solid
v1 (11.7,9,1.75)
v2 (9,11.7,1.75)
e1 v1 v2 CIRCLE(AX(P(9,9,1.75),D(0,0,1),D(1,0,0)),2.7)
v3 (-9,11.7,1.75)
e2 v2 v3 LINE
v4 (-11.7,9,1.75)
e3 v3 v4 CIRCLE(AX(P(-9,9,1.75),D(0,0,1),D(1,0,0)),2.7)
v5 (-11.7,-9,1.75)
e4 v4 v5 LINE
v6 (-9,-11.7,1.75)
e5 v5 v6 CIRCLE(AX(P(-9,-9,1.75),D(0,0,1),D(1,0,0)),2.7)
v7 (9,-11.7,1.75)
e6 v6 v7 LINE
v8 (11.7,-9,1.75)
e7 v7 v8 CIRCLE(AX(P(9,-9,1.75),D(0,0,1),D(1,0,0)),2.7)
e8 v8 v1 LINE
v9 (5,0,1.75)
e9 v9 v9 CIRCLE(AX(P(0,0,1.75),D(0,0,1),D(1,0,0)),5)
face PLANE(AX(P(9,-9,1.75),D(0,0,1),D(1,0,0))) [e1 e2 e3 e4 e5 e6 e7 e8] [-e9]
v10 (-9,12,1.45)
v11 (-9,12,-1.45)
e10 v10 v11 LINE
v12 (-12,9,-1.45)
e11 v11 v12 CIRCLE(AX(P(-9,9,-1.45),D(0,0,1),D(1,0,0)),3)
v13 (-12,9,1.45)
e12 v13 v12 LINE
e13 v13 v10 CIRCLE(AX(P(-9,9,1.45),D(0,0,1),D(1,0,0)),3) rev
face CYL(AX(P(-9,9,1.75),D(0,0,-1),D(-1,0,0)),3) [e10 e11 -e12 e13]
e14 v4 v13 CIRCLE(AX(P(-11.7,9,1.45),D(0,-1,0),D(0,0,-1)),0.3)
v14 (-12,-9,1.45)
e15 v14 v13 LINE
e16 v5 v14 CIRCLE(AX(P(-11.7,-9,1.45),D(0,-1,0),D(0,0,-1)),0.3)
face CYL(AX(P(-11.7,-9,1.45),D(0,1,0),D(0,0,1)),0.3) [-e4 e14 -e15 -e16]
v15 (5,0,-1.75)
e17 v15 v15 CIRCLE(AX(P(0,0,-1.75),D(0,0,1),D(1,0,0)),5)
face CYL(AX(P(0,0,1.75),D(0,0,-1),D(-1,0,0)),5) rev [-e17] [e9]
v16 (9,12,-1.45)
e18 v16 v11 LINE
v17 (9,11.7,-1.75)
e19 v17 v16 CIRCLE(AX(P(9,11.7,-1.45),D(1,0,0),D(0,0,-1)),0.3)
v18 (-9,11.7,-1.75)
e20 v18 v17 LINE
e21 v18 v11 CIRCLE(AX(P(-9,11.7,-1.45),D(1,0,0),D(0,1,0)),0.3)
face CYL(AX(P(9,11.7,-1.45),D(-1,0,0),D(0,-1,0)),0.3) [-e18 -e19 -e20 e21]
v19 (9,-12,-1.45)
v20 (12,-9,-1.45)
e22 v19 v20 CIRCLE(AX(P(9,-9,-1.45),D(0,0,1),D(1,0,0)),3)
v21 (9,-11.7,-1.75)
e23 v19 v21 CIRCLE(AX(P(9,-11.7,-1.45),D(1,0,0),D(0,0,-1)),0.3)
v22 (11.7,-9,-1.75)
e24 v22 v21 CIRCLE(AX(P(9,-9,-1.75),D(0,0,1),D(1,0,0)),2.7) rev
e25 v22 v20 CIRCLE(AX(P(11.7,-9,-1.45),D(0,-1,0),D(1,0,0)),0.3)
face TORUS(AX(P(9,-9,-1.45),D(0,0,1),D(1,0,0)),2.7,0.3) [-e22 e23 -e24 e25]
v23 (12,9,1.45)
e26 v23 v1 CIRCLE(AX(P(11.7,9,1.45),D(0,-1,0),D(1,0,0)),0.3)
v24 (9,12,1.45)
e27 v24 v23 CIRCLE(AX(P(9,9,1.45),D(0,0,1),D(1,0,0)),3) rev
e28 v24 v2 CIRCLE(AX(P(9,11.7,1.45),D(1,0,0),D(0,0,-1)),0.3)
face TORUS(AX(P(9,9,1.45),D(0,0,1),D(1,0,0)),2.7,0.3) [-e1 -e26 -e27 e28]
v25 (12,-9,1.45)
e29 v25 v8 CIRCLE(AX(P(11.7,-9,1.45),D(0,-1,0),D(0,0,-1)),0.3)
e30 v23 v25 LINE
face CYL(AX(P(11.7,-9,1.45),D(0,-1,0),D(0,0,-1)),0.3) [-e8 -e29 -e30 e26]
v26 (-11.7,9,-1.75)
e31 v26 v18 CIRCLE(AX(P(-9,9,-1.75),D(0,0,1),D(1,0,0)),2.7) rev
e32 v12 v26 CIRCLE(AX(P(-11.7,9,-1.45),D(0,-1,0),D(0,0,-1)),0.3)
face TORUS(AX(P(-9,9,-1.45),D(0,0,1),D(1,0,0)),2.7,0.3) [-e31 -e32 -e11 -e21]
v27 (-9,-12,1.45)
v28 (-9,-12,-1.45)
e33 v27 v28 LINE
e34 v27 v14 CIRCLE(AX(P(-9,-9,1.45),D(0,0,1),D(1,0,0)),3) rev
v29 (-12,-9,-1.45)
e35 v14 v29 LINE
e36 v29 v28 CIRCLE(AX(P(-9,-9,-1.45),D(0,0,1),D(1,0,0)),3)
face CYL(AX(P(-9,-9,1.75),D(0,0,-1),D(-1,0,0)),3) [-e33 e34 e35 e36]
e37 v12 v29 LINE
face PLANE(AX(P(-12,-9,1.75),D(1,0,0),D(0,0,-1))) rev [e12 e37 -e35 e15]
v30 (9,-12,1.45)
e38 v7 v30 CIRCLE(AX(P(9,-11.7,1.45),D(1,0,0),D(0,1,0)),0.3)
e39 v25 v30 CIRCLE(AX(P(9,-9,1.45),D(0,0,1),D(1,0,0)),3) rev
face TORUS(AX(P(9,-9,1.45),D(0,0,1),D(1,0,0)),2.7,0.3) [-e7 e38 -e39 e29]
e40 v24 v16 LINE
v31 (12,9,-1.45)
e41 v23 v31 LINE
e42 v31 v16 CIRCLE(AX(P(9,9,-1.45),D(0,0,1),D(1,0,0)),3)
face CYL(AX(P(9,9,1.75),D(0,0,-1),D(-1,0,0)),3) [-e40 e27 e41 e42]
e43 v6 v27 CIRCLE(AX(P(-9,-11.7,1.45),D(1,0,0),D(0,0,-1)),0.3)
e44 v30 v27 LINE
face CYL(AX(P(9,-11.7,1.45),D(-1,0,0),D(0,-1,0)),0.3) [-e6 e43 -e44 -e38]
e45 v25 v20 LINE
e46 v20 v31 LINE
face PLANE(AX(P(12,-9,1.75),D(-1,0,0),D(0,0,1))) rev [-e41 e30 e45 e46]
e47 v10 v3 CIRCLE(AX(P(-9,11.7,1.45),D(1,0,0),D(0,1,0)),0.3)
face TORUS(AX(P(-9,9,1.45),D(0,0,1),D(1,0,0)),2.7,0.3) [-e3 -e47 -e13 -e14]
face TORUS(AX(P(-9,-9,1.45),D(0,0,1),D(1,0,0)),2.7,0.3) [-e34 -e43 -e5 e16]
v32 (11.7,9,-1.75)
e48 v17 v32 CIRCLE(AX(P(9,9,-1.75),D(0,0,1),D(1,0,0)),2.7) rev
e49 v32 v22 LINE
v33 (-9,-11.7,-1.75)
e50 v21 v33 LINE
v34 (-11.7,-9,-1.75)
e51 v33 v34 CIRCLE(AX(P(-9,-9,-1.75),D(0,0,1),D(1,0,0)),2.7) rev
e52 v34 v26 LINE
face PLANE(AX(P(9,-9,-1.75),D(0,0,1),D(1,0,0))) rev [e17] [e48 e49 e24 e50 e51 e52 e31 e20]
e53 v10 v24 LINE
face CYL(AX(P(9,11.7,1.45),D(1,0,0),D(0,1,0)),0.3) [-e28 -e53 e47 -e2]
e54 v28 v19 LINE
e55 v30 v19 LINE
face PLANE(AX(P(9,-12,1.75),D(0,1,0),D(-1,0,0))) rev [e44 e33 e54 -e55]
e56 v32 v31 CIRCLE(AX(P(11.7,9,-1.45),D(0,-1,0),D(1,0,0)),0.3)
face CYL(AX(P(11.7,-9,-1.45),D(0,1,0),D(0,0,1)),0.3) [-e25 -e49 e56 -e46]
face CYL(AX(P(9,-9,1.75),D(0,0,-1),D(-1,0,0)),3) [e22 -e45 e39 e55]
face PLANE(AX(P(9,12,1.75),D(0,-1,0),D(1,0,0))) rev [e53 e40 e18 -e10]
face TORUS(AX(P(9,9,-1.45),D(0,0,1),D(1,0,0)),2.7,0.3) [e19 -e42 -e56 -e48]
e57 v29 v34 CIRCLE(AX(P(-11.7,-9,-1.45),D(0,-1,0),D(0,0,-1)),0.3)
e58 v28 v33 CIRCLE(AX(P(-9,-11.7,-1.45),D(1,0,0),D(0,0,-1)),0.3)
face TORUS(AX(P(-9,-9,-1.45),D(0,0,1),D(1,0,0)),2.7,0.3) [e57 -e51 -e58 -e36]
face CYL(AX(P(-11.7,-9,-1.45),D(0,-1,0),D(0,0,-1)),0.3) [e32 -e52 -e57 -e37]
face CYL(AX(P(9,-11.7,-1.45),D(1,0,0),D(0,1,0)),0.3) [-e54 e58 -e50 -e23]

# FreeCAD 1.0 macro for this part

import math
import FreeCAD as App
import Part
import Sketcher


def edges_at(feature, points):
    """Names of the edges that pass closest to the given points."""
    edges = feature.Shape.Edges
    near = lambda p: min(range(len(edges)), key=lambda i: edges[i].distToShape(Part.Vertex(*p))[0])
    return sorted({f"Edge{near(p) + 1}" for p in points})

doc = App.newDocument("Part")
params = doc.addObject("Spreadsheet::Sheet", "Params")
for row, (alias, value) in enumerate([
    ("sketch1_diameter", "10 mm"),
    ("sketch1_radius", "3 mm"),
    ("sketch1_width", "18 mm"),
    ("pad1_length", "3.5 mm"),
    ("fillet_radius", "0.3 mm"),
], start=1):
    params.set(f"A{row}", alias)
    params.set(f"B{row}", "=" + value)
    params.setAlias(f"B{row}", alias)

body = doc.addObject("PartDesign::Body", "Body")

sketch1 = doc.addObject("Sketcher::SketchObject", "Sketch")
body.addObject(sketch1)
sketch1.AttachmentSupport = (doc.XY_Plane, [""])
sketch1.MapMode = "FlatFace"
sketch1.addGeometry(Part.LineSegment(App.Vector(-9, -12, 0), App.Vector(9, -12, 0)), False)
sketch1.addGeometry(Part.ArcOfCircle(Part.Circle(App.Vector(9, -9, 0), App.Vector(0, 0, 1), 3), math.radians(-90), math.radians(0)), False)
sketch1.addGeometry(Part.LineSegment(App.Vector(12, -9, 0), App.Vector(12, 9, 0)), False)
sketch1.addGeometry(Part.ArcOfCircle(Part.Circle(App.Vector(9, 9, 0), App.Vector(0, 0, 1), 3), math.radians(0), math.radians(90)), False)
sketch1.addGeometry(Part.LineSegment(App.Vector(9, 12, 0), App.Vector(-9, 12, 0)), False)
sketch1.addGeometry(Part.ArcOfCircle(Part.Circle(App.Vector(-9, 9, 0), App.Vector(0, 0, 1), 3), math.radians(90), math.radians(180)), False)
sketch1.addGeometry(Part.LineSegment(App.Vector(-12, 9, 0), App.Vector(-12, -9, 0)), False)
sketch1.addGeometry(Part.ArcOfCircle(Part.Circle(App.Vector(-9, -9, 0), App.Vector(0, 0, 1), 3), math.radians(180), math.radians(270)), False)
sketch1.addGeometry(Part.Circle(App.Vector(0, 0, 0), App.Vector(0, 0, 1), 5), False)
sketch1.addConstraint(Sketcher.Constraint("Tangent", 0, 2, 1, 1))
sketch1.addConstraint(Sketcher.Constraint("Tangent", 1, 2, 2, 1))
sketch1.addConstraint(Sketcher.Constraint("Tangent", 2, 2, 3, 1))
sketch1.addConstraint(Sketcher.Constraint("Tangent", 3, 2, 4, 1))
sketch1.addConstraint(Sketcher.Constraint("Tangent", 4, 2, 5, 1))
sketch1.addConstraint(Sketcher.Constraint("Tangent", 5, 2, 6, 1))
sketch1.addConstraint(Sketcher.Constraint("Tangent", 6, 2, 7, 1))
sketch1.addConstraint(Sketcher.Constraint("Tangent", 7, 2, 0, 1))
sketch1.addConstraint(Sketcher.Constraint("Horizontal", 0))
sketch1.addConstraint(Sketcher.Constraint("Vertical", 2))
sketch1.addConstraint(Sketcher.Constraint("Horizontal", 4))
sketch1.addConstraint(Sketcher.Constraint("Vertical", 6))
sketch1.addConstraint(Sketcher.Constraint("Coincident", 8, 3, -1, 1))
sketch1.addConstraint(Sketcher.Constraint("Equal", 1, 3))
sketch1.addConstraint(Sketcher.Constraint("Equal", 3, 5))
sketch1.addConstraint(Sketcher.Constraint("Equal", 5, 7))
sketch1.addConstraint(Sketcher.Constraint("Symmetric", 1, 3, 5, 3, -1, 1))
sketch1.addConstraint(Sketcher.Constraint("Equal", 4, 2))
sketch1.addConstraint(Sketcher.Constraint("Diameter", 8, 10.0))
sketch1.addConstraint(Sketcher.Constraint("Radius", 1, 3.0))
sketch1.addConstraint(Sketcher.Constraint("DistanceX", 0, 1, 0, 2, 18.0))
sketch1.setExpression("Constraints[18]", "Params.sketch1_diameter")
sketch1.setExpression("Constraints[19]", "Params.sketch1_radius")
sketch1.setExpression("Constraints[20]", "Params.sketch1_width")
pad1 = doc.addObject("PartDesign::Pad", "Pad")
body.addObject(pad1)
pad1.Profile = sketch1
pad1.setExpression("Length", "Params.pad1_length")
pad1.Midplane = True
doc.recompute()

fillet = doc.addObject("PartDesign::Fillet", "Fillet")
body.addObject(fillet)
fillet.Base = (pad1, edges_at(pad1, [
    (0, 12, -1.75),
    (11.121, 11.121, -1.75),
    (12, 0, -1.75),
    (11.121, -11.121, -1.75),
    (11.121, 11.121, 1.75),
    (0, 12, 1.75),
    (-11.121, 11.121, 1.75),
    (-12, 0, 1.75),
    (-11.121, -11.121, 1.75),
    (0, -12, 1.75),
    (11.121, -11.121, 1.75),
    (0, -12, -1.75),
    (12, 0, 1.75),
    (-11.121, -11.121, -1.75),
    (-12, 0, -1.75),
    (-11.121, 11.121, -1.75),
]))
fillet.setExpression("Radius", "Params.fillet_radius")

doc.recompute()
